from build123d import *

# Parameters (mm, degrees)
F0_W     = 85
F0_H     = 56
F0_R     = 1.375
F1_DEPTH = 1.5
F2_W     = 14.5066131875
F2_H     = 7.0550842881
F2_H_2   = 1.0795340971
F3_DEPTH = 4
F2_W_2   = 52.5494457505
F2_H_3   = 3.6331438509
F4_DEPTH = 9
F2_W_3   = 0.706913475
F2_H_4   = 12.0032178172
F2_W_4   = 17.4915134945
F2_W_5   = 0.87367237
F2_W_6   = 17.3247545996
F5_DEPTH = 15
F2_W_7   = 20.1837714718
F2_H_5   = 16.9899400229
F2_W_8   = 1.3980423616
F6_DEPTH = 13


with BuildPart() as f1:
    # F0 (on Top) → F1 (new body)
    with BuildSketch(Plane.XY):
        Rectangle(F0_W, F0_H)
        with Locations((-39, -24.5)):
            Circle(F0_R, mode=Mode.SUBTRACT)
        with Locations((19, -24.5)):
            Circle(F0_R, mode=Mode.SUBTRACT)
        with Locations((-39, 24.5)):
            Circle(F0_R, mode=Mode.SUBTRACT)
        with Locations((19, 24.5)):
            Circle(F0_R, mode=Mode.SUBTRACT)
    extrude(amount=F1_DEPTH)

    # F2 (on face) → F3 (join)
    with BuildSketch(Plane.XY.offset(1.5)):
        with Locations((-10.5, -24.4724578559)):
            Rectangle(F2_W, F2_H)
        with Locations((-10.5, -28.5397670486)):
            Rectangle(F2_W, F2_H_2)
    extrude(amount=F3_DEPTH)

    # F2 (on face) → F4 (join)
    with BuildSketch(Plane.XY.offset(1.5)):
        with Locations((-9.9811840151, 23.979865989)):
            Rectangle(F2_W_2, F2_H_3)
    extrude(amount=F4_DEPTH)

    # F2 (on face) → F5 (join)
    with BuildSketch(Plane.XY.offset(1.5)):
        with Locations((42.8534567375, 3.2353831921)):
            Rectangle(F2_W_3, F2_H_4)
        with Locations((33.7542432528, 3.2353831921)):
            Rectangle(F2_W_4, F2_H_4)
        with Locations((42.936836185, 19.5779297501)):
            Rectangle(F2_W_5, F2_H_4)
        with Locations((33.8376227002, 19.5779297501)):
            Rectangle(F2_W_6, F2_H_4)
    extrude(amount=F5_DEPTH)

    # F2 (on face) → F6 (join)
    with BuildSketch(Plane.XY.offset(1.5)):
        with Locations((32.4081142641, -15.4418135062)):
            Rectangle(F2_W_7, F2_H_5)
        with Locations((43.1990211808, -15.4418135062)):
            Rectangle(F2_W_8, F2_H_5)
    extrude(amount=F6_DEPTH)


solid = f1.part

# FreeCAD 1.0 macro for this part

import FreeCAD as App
import Part
import Sketcher

V = App.Vector


def add_polygon(sketch, points):
    """Adds a closed chain of lines whose ends are joined by coincident constraints."""
    first, n = sketch.GeometryCount, len(points)
    for a, b in zip(points, points[1:] + points[:1]):
        sketch.addGeometry(Part.LineSegment(App.Vector(*a, 0), App.Vector(*b, 0)), False)
    for i in range(n):
        sketch.addConstraint(Sketcher.Constraint("Coincident", first + i, 2, first + (i + 1) % n, 1))

doc = App.newDocument("Part")
params = doc.addObject("Spreadsheet::Sheet", "Params")
for row, (alias, value) in enumerate([
    ("sketch1_diameter", "2.75 mm"),
    ("sketch1_width", "85 mm"),
    ("sketch1_height", "56 mm"),
    ("pad1_length", "1.5 mm"),
    ("pad2_length", "4 mm"),
    ("pad3_length", "9 mm"),
    ("pad4_length", "15 mm"),
    ("pad5_length", "13 mm"),
], start=1):
    params.set(f"A{row}", alias)
    params.set(f"B{row}", "=" + value)
    params.setAlias(f"B{row}", alias)

body = doc.addObject("PartDesign::Body", "Body")

# Sketch on XY plane
sketch1 = body.newObject("Sketcher::SketchObject", "Sketch")
sketch1.AttachmentSupport = (doc.getObject("XY_Plane"), [""])
sketch1.MapMode = "FlatFace"
add_polygon(sketch1, [(-42.5, 28), (-42.5, -28), (42.5, -28), (42.5, 28)])  # lines 0-3
sketch1.addGeometry(Part.Circle(V(-39, -24.5, 0), V(0, 0, 1), 1.4), False)  # 4
sketch1.addGeometry(Part.Circle(V(19, -24.5, 0), V(0, 0, 1), 1.4), False)  # 5
sketch1.addGeometry(Part.Circle(V(-39, 24.5, 0), V(0, 0, 1), 1.4), False)  # 6
sketch1.addGeometry(Part.Circle(V(19, 24.5, 0), V(0, 0, 1), 1.4), False)  # 7
sketch1.addConstraint(Sketcher.Constraint("Vertical", 0))
sketch1.addConstraint(Sketcher.Constraint("Horizontal", 1))
sketch1.addConstraint(Sketcher.Constraint("Vertical", 2))
sketch1.addConstraint(Sketcher.Constraint("Horizontal", 3))
sketch1.addConstraint(Sketcher.Constraint("Equal", 4, 5))
sketch1.addConstraint(Sketcher.Constraint("Equal", 5, 6))
sketch1.addConstraint(Sketcher.Constraint("Equal", 6, 7))
sketch1.addConstraint(Sketcher.Constraint("Symmetric", 0, 2, 2, 2, -1, 1))
sketch1.addConstraint(Sketcher.Constraint("Symmetric", 4, 3, 6, 3, -1))
sketch1.addConstraint(Sketcher.Constraint("Symmetric", 5, 3, 7, 3, -1))
sketch1.addConstraint(Sketcher.Constraint("Horizontal", 4, 3, 5, 3))
sketch1.addConstraint(Sketcher.Constraint("Diameter", 4, 2.75))
sketch1.addConstraint(Sketcher.Constraint("DistanceX", 1, 1, 1, 2, 85.0))
sketch1.addConstraint(Sketcher.Constraint("DistanceY", 0, 2, 0, 1, 56.0))
sketch1.addConstraint(Sketcher.Constraint("DistanceX", 4, 3, -1, 1, 39.0))
sketch1.addConstraint(Sketcher.Constraint("DistanceX", -1, 1, 5, 3, 19.0))
sketch1.addConstraint(Sketcher.Constraint("DistanceY", 4, 3, 6, 3, 49.0))
sketch1.setExpression("Constraints[15]", "Params.sketch1_diameter")
sketch1.setExpression("Constraints[16]", "Params.sketch1_width")
sketch1.setExpression("Constraints[17]", "Params.sketch1_height")
pad1 = body.newObject("PartDesign::Pad", "Pad")
pad1.Profile = sketch1
pad1.setExpression("Length", "Params.pad1_length")

# Sketch on XY plane
sketch2 = body.newObject("Sketcher::SketchObject", "Sketch001")
sketch2.AttachmentSupport = (doc.getObject("XY_Plane"), [""])
sketch2.MapMode = "FlatFace"
sketch2.AttachmentOffset = App.Placement(V(0, 0, 1.5), App.Rotation())
add_polygon(sketch2, [(-18, -21), (-18, -29), (-3, -29), (-3, -21)])  # lines 0-3
sketch2.addConstraint(Sketcher.Constraint("Vertical", 0))
sketch2.addConstraint(Sketcher.Constraint("Horizontal", 1))
sketch2.addConstraint(Sketcher.Constraint("Vertical", 2))
sketch2.addConstraint(Sketcher.Constraint("Horizontal", 3))
sketch2.addConstraint(Sketcher.Constraint("DistanceY", 0, 2, 0, 1, 8.134618))
sketch2.addConstraint(Sketcher.Constraint("DistanceX", 1, 1, 1, 2, 14.506613))
sketch2.addConstraint(Sketcher.Constraint("DistanceX", 0, 2, -1, 1, 17.753307))
sketch2.addConstraint(Sketcher.Constraint("DistanceY", 0, 2, -1, 1, 29.079534))
pad2 = body.newObject("PartDesign::Pad", "Pad001")
pad2.Profile = sketch2
pad2.setExpression("Length", "Params.pad2_length")

# Sketch on XY plane
sketch3 = body.newObject("Sketcher::SketchObject", "Sketch002")
sketch3.AttachmentSupport = (doc.getObject("XY_Plane"), [""])
sketch3.MapMode = "FlatFace"
sketch3.AttachmentOffset = App.Placement(V(0, 0, 1.5), App.Rotation())
add_polygon(sketch3, [(-36.3, 25.8), (-36.3, 22.2), (16.3, 22.2), (16.3, 25.8)])  # lines 0-3
sketch3.addConstraint(Sketcher.Constraint("Vertical", 0))
sketch3.addConstraint(Sketcher.Constraint("Horizontal", 1))
sketch3.addConstraint(Sketcher.Constraint("Vertical", 2))
sketch3.addConstraint(Sketcher.Constraint("Horizontal", 3))
sketch3.addConstraint(Sketcher.Constraint("DistanceX", 1, 1, 1, 2, 52.549446))
sketch3.addConstraint(Sketcher.Constraint("DistanceY", 0, 2, 0, 1, 3.633144))
sketch3.addConstraint(Sketcher.Constraint("DistanceX", -1, 1, 1, 2, 16.293539))
sketch3.addConstraint(Sketcher.Constraint("DistanceY", -1, 1, 0, 2, 22.163294))
pad3 = body.newObject("PartDesign::Pad", "Pad002")
pad3.Profile = sketch3
pad3.setExpression("Length", "Params.pad3_length")

# Sketch on XY plane
sketch4 = body.newObject("Sketcher::SketchObject", "Sketch003")
sketch4.AttachmentSupport = (doc.getObject("XY_Plane"), [""])
sketch4.MapMode = "FlatFace"
sketch4.AttachmentOffset = App.Placement(V(0, 0, 1.5), App.Rotation())
add_polygon(sketch4, [(43, -3), (43, 9), (25, 9), (25, -3)])  # lines 0-3
add_polygon(sketch4, [(43, 14), (43, 26), (25, 26), (25, 14)])  # lines 4-7
sketch4.addConstraint(Sketcher.Constraint("Vertical", 0))
sketch4.addConstraint(Sketcher.Constraint("Horizontal", 1))
sketch4.addConstraint(Sketcher.Constraint("Vertical", 2))
sketch4.addConstraint(Sketcher.Constraint("Horizontal", 3))
sketch4.addConstraint(Sketcher.Constraint("Vertical", 4))
sketch4.addConstraint(Sketcher.Constraint("Horizontal", 5))
sketch4.addConstraint(Sketcher.Constraint("Vertical", 6))
sketch4.addConstraint(Sketcher.Constraint("Horizontal", 7))
sketch4.addConstraint(Sketcher.Constraint("Equal", 3, 5))
sketch4.addConstraint(Sketcher.Constraint("Equal", 2, 4))
sketch4.addConstraint(Sketcher.Constraint("DistanceX", 1, 2, 1, 1, 18.198427))
sketch4.addConstraint(Sketcher.Constraint("DistanceY", 0, 1, 0, 2, 12.003218))
sketch4.addConstraint(Sketcher.Constraint("DistanceY", -1, 1, 4, 2, 25.579539))
sketch4.addConstraint(Sketcher.Constraint("DistanceX", 0, 2, 4, 2, 0.166759))
sketch4.addConstraint(Sketcher.Constraint("DistanceY", 1, 2, 6, 2, 4.339329))
sketch4.addConstraint(Sketcher.Constraint("DistanceX", -1, 1, 0, 2, 43.206913))
pad4 = body.newObject("PartDesign::Pad", "Pad003")
pad4.Profile = sketch4
pad4.setExpression("Length", "Params.pad4_length")

# Sketch on XY plane
sketch5 = body.newObject("Sketcher::SketchObject", "Sketch004")
sketch5.AttachmentSupport = (doc.getObject("XY_Plane"), [""])
sketch5.MapMode = "FlatFace"
sketch5.AttachmentOffset = App.Placement(V(0, 0, 1.5), App.Rotation())
add_polygon(sketch5, [(22, -7), (22, -24), (44, -24), (44, -7)])  # lines 0-3
sketch5.addConstraint(Sketcher.Constraint("Vertical", 0))
sketch5.addConstraint(Sketcher.Constraint("Horizontal", 1))
sketch5.addConstraint(Sketcher.Constraint("Vertical", 2))
sketch5.addConstraint(Sketcher.Constraint("Horizontal", 3))
sketch5.addConstraint(Sketcher.Constraint("DistanceY", 0, 2, 0, 1, 16.98994))
sketch5.addConstraint(Sketcher.Constraint("DistanceX", 1, 1, 1, 2, 21.581814))
sketch5.addConstraint(Sketcher.Constraint("DistanceX", -1, 1, 0, 2, 22.316229))
sketch5.addConstraint(Sketcher.Constraint("DistanceY", 0, 2, -1, 1, 23.936784))
pad5 = body.newObject("PartDesign::Pad", "Pad004")
pad5.Profile = sketch5
pad5.setExpression("Length", "Params.pad5_length")

doc.recompute()
